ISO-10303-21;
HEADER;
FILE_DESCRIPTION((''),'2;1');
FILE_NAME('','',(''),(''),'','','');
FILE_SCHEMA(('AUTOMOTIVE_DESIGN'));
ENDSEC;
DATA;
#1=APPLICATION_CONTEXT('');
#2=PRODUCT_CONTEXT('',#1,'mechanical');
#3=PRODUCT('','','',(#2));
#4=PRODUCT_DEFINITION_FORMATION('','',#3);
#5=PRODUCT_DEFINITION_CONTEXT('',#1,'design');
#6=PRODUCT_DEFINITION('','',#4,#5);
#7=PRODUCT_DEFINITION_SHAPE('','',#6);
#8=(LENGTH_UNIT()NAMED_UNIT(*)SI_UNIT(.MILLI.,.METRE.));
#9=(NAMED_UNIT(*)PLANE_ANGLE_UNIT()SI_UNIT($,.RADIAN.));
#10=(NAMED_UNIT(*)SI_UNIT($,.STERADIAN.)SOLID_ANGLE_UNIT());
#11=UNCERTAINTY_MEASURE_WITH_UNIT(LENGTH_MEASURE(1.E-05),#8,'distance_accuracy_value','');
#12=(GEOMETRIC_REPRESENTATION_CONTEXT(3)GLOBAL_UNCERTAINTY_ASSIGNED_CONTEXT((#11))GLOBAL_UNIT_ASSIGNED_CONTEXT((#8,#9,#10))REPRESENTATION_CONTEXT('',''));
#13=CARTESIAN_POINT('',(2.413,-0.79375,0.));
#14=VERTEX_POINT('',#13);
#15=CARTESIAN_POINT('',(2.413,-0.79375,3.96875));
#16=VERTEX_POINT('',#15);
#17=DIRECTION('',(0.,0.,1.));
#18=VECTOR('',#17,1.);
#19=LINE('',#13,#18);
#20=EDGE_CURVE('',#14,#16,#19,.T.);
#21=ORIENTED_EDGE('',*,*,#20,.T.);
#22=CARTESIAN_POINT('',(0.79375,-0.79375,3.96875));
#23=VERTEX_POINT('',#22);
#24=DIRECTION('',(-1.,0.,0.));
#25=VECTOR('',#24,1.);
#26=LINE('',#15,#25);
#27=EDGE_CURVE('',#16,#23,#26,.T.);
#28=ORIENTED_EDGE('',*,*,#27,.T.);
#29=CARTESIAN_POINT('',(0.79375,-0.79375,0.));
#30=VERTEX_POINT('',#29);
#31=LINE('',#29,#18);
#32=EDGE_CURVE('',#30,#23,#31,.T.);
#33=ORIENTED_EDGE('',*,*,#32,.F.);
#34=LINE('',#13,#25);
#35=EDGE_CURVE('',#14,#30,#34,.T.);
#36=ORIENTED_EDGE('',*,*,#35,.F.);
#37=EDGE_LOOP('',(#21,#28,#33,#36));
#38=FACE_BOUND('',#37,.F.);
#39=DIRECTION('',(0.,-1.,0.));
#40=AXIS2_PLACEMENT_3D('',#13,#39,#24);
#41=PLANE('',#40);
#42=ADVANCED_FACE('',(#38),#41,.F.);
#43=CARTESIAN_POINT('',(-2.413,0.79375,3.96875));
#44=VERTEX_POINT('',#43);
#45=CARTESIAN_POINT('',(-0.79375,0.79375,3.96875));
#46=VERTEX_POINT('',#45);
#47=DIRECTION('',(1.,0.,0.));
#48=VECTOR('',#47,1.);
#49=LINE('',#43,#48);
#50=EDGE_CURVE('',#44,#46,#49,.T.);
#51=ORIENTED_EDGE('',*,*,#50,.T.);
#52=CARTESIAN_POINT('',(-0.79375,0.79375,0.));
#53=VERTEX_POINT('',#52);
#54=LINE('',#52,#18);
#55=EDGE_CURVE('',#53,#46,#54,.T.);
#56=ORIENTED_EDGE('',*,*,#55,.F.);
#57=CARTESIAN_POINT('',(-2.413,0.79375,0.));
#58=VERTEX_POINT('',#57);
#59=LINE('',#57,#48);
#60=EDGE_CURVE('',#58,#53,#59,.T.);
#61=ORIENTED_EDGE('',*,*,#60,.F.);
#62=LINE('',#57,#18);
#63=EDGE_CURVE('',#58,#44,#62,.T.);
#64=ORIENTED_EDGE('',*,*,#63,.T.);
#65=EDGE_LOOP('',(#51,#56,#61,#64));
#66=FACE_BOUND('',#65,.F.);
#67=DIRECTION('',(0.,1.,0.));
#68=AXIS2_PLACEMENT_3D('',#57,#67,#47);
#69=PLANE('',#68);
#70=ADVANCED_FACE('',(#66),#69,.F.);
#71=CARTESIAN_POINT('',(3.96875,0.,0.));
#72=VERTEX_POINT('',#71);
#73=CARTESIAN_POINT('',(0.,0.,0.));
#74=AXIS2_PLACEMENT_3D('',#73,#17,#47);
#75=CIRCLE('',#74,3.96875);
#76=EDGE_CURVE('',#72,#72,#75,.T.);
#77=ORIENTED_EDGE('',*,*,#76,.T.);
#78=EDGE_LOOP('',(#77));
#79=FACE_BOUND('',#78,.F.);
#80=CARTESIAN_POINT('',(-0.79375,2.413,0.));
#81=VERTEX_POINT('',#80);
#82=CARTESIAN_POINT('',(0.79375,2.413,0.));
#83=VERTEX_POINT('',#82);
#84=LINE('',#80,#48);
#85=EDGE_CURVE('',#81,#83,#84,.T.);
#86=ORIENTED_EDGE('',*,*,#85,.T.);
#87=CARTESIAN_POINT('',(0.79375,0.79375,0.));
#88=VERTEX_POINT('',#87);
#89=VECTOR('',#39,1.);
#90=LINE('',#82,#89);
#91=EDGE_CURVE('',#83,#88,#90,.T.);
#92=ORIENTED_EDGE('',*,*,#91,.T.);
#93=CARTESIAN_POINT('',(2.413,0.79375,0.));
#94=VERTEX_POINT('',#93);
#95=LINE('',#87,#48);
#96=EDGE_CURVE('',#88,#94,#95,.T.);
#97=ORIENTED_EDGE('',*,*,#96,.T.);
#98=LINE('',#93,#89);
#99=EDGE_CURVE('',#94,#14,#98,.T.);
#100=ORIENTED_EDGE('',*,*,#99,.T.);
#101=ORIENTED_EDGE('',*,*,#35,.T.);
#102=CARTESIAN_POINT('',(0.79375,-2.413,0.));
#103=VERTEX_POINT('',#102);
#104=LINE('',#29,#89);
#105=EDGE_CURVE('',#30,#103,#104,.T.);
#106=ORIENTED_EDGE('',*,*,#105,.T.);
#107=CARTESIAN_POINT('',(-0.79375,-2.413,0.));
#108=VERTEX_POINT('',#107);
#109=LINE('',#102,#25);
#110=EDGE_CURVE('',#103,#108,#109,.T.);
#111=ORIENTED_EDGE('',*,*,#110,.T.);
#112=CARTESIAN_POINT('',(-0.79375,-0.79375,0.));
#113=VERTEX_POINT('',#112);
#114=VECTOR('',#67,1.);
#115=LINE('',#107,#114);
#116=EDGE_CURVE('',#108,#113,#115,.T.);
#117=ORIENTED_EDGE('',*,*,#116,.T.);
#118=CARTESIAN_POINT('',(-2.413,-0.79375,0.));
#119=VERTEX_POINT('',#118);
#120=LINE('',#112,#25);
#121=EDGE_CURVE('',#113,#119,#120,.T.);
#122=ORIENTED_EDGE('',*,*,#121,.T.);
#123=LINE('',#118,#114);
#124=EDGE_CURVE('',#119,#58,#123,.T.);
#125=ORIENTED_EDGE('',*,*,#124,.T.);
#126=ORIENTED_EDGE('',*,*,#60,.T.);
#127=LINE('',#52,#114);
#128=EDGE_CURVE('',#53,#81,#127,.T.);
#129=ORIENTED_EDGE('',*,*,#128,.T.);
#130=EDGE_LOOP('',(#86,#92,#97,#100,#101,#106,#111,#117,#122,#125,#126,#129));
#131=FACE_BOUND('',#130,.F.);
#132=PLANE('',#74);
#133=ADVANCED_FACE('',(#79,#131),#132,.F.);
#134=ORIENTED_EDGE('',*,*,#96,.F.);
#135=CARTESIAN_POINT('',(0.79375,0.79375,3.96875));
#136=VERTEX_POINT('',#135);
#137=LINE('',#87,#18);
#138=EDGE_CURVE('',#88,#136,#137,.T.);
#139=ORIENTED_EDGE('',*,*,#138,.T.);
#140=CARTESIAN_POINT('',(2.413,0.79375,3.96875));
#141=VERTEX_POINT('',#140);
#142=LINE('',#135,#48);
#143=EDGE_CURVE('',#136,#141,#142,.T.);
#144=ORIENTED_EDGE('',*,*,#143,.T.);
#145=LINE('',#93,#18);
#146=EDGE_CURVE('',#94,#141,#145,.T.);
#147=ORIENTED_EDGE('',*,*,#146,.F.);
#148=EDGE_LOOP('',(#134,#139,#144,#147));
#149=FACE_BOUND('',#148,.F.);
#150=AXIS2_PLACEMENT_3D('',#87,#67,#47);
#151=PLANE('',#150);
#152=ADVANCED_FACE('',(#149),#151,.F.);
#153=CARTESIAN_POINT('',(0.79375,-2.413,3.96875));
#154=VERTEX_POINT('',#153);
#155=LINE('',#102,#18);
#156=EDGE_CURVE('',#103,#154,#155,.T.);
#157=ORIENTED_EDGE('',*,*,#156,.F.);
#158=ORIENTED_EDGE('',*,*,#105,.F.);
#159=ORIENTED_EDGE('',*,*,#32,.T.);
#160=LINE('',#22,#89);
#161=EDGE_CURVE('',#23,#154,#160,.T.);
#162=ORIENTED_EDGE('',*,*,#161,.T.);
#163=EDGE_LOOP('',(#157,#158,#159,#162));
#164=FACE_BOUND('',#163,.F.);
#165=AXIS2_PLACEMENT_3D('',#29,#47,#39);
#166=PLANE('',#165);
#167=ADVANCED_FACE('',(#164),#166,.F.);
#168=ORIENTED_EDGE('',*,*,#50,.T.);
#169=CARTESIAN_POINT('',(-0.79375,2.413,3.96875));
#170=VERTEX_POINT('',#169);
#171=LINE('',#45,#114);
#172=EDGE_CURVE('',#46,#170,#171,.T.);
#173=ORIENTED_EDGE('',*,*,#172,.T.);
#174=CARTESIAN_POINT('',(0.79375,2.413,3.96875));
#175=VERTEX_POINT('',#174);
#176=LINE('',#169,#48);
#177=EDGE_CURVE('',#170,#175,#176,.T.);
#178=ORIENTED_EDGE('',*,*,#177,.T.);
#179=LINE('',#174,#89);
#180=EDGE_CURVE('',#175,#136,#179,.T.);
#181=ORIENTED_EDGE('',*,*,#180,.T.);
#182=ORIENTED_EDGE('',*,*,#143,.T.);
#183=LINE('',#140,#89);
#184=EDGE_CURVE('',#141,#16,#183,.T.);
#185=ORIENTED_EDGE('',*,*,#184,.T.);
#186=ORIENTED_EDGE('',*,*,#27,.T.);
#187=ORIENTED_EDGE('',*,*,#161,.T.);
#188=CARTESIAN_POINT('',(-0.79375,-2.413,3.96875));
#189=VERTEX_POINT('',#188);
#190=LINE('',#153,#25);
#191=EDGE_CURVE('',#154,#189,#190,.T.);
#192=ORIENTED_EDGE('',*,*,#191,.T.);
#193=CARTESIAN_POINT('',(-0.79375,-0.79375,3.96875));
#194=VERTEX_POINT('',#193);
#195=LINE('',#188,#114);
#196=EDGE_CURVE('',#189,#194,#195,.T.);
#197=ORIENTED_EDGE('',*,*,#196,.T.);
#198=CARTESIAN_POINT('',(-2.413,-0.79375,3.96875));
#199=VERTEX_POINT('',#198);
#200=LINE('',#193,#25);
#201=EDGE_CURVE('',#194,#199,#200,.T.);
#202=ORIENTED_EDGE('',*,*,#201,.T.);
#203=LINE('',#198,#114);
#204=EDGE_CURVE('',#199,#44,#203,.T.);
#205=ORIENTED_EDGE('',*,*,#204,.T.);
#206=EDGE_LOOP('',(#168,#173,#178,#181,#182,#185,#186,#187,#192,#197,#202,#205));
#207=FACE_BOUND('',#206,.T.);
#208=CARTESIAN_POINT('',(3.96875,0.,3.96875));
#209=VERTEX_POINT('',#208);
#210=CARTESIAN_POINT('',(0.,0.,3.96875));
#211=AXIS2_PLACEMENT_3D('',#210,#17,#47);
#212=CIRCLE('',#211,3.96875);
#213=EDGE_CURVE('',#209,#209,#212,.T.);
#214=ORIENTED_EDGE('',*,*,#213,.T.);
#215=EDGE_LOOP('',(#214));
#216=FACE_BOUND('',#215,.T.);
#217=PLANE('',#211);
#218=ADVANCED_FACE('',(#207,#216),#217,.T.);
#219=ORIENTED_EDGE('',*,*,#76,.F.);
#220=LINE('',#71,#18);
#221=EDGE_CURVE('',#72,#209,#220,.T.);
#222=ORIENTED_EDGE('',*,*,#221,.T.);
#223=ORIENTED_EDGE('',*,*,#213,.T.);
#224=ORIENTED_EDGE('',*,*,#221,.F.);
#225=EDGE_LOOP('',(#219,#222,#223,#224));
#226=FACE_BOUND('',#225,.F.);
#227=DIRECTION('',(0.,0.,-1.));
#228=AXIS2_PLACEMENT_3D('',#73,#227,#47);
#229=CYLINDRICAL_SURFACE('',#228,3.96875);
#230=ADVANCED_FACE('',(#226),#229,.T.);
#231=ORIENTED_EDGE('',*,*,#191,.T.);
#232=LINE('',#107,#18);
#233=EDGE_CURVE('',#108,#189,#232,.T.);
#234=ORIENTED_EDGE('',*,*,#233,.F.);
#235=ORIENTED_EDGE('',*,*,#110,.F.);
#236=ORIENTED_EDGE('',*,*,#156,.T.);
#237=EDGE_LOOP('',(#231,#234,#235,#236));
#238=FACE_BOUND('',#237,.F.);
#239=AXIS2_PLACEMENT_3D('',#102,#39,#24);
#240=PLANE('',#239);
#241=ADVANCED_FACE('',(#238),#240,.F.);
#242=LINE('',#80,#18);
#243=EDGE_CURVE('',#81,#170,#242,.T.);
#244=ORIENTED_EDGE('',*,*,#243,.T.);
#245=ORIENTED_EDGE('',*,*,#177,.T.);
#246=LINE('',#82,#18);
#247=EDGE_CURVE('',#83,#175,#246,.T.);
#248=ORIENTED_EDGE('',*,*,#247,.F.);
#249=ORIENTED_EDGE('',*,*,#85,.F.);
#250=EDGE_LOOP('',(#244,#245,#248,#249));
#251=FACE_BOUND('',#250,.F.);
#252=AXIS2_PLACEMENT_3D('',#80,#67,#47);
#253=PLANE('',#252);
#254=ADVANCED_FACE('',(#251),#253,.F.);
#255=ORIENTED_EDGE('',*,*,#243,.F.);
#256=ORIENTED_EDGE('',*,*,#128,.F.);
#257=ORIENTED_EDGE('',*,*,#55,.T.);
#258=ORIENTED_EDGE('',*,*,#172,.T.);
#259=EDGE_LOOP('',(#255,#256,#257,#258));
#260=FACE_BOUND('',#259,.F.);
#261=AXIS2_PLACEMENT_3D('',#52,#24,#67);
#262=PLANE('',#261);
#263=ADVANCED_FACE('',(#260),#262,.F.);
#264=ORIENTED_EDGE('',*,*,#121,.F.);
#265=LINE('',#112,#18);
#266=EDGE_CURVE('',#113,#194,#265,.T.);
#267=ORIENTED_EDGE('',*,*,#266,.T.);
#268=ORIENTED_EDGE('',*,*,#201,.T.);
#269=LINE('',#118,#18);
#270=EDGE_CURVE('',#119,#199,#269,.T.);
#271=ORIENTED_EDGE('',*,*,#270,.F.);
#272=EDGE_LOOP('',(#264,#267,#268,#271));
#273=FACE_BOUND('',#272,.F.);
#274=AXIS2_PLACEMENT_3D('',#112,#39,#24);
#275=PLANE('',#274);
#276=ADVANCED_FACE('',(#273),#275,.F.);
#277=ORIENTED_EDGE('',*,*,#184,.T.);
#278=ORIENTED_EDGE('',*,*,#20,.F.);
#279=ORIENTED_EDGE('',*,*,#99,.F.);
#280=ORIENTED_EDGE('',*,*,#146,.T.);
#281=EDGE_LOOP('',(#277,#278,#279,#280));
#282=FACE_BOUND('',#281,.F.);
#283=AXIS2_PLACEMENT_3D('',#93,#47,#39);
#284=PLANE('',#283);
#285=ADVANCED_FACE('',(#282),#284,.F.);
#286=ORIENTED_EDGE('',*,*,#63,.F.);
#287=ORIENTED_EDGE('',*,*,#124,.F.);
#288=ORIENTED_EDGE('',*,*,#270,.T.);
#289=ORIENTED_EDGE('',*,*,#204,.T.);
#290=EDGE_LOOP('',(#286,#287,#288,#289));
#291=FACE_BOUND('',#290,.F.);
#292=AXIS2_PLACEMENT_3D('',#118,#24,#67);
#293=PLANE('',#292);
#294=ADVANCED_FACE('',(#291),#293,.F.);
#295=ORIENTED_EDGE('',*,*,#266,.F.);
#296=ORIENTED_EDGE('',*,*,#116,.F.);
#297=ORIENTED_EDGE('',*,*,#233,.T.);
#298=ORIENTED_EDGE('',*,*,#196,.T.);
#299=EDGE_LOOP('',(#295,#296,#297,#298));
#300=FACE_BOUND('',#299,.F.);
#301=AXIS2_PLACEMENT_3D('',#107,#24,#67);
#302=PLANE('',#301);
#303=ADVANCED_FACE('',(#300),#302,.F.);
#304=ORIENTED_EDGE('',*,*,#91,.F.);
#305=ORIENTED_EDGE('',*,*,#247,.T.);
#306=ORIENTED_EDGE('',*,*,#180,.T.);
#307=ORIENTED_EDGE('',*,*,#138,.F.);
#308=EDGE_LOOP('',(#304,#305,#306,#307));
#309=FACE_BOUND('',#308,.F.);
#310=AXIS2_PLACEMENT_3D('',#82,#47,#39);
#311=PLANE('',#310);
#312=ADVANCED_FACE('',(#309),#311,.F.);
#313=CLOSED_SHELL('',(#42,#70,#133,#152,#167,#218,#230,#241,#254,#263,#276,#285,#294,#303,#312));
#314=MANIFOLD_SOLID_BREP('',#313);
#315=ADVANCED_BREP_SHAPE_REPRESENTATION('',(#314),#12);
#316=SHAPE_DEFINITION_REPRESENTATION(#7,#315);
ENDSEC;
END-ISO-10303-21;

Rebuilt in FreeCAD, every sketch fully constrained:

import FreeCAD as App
import Part
import Sketcher
from FreeCAD import Vector
Q = App.Units.Quantity

doc = App.newDocument("Part")
body = doc.addObject("PartDesign::Body", "Body")

sketch1 = body.newObject("Sketcher::SketchObject", "Sketch")
sketch1.AttachmentSupport = (doc.getObject("XY_Plane"), [""])
sketch1.MapMode = "FlatFace"
sketch1.addGeometry([
    Part.Circle(Vector(0, 0, 0), Vector(0, 0, 1), 4),
    Part.LineSegment(Vector(2.4, -0.8, 0), Vector(0.8, -0.8, 0)),
    Part.LineSegment(Vector(0.8, -0.8, 0), Vector(0.8, -2.4, 0)),
    Part.LineSegment(Vector(0.8, -2.4, 0), Vector(-0.8, -2.4, 0)),
    Part.LineSegment(Vector(-0.8, -2.4, 0), Vector(-0.8, -0.8, 0)),
    Part.LineSegment(Vector(-0.8, -0.8, 0), Vector(-2.4, -0.8, 0)),
    Part.LineSegment(Vector(-2.4, -0.8, 0), Vector(-2.4, 0.8, 0)),
    Part.LineSegment(Vector(-2.4, 0.8, 0), Vector(-0.8, 0.8, 0)),
    Part.LineSegment(Vector(-0.8, 0.8, 0), Vector(-0.8, 2.4, 0)),
    Part.LineSegment(Vector(-0.8, 2.4, 0), Vector(0.8, 2.4, 0)),
    Part.LineSegment(Vector(0.8, 2.4, 0), Vector(0.8, 0.8, 0)),
    Part.LineSegment(Vector(0.8, 0.8, 0), Vector(2.4, 0.8, 0)),
    Part.LineSegment(Vector(2.4, 0.8, 0), Vector(2.4, -0.8, 0)),
], False)
sketch1.addConstraint([
    Sketcher.Constraint("Coincident", 1, 2, 2, 1),
    Sketcher.Constraint("Coincident", 2, 2, 3, 1),
    Sketcher.Constraint("Coincident", 3, 2, 4, 1),
    Sketcher.Constraint("Coincident", 4, 2, 5, 1),
    Sketcher.Constraint("Coincident", 5, 2, 6, 1),
    Sketcher.Constraint("Coincident", 6, 2, 7, 1),
    Sketcher.Constraint("Coincident", 7, 2, 8, 1),
    Sketcher.Constraint("Coincident", 8, 2, 9, 1),
    Sketcher.Constraint("Coincident", 9, 2, 10, 1),
    Sketcher.Constraint("Coincident", 10, 2, 11, 1),
    Sketcher.Constraint("Coincident", 11, 2, 12, 1),
    Sketcher.Constraint("Coincident", 12, 2, 1, 1),
    Sketcher.Constraint("Horizontal", 1),
    Sketcher.Constraint("Vertical", 2),
    Sketcher.Constraint("Horizontal", 3),
    Sketcher.Constraint("Vertical", 4),
    Sketcher.Constraint("Horizontal", 5),
    Sketcher.Constraint("Vertical", 6),
    Sketcher.Constraint("Horizontal", 7),
    Sketcher.Constraint("Vertical", 8),
    Sketcher.Constraint("Horizontal", 9),
    Sketcher.Constraint("Vertical", 10),
    Sketcher.Constraint("Horizontal", 11),
    Sketcher.Constraint("Vertical", 12),
    Sketcher.Constraint("Coincident", 0, 3, -1, 1),
    Sketcher.Constraint("Symmetric", 1, 2, 7, 2, -1, 1),
    Sketcher.Constraint("Symmetric", 3, 2, 9, 2, -1, 1),
    Sketcher.Constraint("Symmetric", 5, 2, 11, 2, -1, 1),
    Sketcher.Constraint("Symmetric", 1, 2, 4, 2, -2),
    Sketcher.Constraint("Equal", 11, 2),
    Sketcher.Constraint("Equal", 9, 6),
    Sketcher.Constraint("Diameter", 0, Q("0.3125 in")),
    Sketcher.Constraint("DistanceX", 3, 2, 3, 1, Q("0.0625 in")),
    Sketcher.Constraint("DistanceY", 2, 2, -1, 1, Q("0.095 in")),
])
pad1 = body.newObject("PartDesign::Pad", "Pad")
pad1.Profile = sketch1
pad1.Length = Q("0.15625 in")

doc.recompute()
